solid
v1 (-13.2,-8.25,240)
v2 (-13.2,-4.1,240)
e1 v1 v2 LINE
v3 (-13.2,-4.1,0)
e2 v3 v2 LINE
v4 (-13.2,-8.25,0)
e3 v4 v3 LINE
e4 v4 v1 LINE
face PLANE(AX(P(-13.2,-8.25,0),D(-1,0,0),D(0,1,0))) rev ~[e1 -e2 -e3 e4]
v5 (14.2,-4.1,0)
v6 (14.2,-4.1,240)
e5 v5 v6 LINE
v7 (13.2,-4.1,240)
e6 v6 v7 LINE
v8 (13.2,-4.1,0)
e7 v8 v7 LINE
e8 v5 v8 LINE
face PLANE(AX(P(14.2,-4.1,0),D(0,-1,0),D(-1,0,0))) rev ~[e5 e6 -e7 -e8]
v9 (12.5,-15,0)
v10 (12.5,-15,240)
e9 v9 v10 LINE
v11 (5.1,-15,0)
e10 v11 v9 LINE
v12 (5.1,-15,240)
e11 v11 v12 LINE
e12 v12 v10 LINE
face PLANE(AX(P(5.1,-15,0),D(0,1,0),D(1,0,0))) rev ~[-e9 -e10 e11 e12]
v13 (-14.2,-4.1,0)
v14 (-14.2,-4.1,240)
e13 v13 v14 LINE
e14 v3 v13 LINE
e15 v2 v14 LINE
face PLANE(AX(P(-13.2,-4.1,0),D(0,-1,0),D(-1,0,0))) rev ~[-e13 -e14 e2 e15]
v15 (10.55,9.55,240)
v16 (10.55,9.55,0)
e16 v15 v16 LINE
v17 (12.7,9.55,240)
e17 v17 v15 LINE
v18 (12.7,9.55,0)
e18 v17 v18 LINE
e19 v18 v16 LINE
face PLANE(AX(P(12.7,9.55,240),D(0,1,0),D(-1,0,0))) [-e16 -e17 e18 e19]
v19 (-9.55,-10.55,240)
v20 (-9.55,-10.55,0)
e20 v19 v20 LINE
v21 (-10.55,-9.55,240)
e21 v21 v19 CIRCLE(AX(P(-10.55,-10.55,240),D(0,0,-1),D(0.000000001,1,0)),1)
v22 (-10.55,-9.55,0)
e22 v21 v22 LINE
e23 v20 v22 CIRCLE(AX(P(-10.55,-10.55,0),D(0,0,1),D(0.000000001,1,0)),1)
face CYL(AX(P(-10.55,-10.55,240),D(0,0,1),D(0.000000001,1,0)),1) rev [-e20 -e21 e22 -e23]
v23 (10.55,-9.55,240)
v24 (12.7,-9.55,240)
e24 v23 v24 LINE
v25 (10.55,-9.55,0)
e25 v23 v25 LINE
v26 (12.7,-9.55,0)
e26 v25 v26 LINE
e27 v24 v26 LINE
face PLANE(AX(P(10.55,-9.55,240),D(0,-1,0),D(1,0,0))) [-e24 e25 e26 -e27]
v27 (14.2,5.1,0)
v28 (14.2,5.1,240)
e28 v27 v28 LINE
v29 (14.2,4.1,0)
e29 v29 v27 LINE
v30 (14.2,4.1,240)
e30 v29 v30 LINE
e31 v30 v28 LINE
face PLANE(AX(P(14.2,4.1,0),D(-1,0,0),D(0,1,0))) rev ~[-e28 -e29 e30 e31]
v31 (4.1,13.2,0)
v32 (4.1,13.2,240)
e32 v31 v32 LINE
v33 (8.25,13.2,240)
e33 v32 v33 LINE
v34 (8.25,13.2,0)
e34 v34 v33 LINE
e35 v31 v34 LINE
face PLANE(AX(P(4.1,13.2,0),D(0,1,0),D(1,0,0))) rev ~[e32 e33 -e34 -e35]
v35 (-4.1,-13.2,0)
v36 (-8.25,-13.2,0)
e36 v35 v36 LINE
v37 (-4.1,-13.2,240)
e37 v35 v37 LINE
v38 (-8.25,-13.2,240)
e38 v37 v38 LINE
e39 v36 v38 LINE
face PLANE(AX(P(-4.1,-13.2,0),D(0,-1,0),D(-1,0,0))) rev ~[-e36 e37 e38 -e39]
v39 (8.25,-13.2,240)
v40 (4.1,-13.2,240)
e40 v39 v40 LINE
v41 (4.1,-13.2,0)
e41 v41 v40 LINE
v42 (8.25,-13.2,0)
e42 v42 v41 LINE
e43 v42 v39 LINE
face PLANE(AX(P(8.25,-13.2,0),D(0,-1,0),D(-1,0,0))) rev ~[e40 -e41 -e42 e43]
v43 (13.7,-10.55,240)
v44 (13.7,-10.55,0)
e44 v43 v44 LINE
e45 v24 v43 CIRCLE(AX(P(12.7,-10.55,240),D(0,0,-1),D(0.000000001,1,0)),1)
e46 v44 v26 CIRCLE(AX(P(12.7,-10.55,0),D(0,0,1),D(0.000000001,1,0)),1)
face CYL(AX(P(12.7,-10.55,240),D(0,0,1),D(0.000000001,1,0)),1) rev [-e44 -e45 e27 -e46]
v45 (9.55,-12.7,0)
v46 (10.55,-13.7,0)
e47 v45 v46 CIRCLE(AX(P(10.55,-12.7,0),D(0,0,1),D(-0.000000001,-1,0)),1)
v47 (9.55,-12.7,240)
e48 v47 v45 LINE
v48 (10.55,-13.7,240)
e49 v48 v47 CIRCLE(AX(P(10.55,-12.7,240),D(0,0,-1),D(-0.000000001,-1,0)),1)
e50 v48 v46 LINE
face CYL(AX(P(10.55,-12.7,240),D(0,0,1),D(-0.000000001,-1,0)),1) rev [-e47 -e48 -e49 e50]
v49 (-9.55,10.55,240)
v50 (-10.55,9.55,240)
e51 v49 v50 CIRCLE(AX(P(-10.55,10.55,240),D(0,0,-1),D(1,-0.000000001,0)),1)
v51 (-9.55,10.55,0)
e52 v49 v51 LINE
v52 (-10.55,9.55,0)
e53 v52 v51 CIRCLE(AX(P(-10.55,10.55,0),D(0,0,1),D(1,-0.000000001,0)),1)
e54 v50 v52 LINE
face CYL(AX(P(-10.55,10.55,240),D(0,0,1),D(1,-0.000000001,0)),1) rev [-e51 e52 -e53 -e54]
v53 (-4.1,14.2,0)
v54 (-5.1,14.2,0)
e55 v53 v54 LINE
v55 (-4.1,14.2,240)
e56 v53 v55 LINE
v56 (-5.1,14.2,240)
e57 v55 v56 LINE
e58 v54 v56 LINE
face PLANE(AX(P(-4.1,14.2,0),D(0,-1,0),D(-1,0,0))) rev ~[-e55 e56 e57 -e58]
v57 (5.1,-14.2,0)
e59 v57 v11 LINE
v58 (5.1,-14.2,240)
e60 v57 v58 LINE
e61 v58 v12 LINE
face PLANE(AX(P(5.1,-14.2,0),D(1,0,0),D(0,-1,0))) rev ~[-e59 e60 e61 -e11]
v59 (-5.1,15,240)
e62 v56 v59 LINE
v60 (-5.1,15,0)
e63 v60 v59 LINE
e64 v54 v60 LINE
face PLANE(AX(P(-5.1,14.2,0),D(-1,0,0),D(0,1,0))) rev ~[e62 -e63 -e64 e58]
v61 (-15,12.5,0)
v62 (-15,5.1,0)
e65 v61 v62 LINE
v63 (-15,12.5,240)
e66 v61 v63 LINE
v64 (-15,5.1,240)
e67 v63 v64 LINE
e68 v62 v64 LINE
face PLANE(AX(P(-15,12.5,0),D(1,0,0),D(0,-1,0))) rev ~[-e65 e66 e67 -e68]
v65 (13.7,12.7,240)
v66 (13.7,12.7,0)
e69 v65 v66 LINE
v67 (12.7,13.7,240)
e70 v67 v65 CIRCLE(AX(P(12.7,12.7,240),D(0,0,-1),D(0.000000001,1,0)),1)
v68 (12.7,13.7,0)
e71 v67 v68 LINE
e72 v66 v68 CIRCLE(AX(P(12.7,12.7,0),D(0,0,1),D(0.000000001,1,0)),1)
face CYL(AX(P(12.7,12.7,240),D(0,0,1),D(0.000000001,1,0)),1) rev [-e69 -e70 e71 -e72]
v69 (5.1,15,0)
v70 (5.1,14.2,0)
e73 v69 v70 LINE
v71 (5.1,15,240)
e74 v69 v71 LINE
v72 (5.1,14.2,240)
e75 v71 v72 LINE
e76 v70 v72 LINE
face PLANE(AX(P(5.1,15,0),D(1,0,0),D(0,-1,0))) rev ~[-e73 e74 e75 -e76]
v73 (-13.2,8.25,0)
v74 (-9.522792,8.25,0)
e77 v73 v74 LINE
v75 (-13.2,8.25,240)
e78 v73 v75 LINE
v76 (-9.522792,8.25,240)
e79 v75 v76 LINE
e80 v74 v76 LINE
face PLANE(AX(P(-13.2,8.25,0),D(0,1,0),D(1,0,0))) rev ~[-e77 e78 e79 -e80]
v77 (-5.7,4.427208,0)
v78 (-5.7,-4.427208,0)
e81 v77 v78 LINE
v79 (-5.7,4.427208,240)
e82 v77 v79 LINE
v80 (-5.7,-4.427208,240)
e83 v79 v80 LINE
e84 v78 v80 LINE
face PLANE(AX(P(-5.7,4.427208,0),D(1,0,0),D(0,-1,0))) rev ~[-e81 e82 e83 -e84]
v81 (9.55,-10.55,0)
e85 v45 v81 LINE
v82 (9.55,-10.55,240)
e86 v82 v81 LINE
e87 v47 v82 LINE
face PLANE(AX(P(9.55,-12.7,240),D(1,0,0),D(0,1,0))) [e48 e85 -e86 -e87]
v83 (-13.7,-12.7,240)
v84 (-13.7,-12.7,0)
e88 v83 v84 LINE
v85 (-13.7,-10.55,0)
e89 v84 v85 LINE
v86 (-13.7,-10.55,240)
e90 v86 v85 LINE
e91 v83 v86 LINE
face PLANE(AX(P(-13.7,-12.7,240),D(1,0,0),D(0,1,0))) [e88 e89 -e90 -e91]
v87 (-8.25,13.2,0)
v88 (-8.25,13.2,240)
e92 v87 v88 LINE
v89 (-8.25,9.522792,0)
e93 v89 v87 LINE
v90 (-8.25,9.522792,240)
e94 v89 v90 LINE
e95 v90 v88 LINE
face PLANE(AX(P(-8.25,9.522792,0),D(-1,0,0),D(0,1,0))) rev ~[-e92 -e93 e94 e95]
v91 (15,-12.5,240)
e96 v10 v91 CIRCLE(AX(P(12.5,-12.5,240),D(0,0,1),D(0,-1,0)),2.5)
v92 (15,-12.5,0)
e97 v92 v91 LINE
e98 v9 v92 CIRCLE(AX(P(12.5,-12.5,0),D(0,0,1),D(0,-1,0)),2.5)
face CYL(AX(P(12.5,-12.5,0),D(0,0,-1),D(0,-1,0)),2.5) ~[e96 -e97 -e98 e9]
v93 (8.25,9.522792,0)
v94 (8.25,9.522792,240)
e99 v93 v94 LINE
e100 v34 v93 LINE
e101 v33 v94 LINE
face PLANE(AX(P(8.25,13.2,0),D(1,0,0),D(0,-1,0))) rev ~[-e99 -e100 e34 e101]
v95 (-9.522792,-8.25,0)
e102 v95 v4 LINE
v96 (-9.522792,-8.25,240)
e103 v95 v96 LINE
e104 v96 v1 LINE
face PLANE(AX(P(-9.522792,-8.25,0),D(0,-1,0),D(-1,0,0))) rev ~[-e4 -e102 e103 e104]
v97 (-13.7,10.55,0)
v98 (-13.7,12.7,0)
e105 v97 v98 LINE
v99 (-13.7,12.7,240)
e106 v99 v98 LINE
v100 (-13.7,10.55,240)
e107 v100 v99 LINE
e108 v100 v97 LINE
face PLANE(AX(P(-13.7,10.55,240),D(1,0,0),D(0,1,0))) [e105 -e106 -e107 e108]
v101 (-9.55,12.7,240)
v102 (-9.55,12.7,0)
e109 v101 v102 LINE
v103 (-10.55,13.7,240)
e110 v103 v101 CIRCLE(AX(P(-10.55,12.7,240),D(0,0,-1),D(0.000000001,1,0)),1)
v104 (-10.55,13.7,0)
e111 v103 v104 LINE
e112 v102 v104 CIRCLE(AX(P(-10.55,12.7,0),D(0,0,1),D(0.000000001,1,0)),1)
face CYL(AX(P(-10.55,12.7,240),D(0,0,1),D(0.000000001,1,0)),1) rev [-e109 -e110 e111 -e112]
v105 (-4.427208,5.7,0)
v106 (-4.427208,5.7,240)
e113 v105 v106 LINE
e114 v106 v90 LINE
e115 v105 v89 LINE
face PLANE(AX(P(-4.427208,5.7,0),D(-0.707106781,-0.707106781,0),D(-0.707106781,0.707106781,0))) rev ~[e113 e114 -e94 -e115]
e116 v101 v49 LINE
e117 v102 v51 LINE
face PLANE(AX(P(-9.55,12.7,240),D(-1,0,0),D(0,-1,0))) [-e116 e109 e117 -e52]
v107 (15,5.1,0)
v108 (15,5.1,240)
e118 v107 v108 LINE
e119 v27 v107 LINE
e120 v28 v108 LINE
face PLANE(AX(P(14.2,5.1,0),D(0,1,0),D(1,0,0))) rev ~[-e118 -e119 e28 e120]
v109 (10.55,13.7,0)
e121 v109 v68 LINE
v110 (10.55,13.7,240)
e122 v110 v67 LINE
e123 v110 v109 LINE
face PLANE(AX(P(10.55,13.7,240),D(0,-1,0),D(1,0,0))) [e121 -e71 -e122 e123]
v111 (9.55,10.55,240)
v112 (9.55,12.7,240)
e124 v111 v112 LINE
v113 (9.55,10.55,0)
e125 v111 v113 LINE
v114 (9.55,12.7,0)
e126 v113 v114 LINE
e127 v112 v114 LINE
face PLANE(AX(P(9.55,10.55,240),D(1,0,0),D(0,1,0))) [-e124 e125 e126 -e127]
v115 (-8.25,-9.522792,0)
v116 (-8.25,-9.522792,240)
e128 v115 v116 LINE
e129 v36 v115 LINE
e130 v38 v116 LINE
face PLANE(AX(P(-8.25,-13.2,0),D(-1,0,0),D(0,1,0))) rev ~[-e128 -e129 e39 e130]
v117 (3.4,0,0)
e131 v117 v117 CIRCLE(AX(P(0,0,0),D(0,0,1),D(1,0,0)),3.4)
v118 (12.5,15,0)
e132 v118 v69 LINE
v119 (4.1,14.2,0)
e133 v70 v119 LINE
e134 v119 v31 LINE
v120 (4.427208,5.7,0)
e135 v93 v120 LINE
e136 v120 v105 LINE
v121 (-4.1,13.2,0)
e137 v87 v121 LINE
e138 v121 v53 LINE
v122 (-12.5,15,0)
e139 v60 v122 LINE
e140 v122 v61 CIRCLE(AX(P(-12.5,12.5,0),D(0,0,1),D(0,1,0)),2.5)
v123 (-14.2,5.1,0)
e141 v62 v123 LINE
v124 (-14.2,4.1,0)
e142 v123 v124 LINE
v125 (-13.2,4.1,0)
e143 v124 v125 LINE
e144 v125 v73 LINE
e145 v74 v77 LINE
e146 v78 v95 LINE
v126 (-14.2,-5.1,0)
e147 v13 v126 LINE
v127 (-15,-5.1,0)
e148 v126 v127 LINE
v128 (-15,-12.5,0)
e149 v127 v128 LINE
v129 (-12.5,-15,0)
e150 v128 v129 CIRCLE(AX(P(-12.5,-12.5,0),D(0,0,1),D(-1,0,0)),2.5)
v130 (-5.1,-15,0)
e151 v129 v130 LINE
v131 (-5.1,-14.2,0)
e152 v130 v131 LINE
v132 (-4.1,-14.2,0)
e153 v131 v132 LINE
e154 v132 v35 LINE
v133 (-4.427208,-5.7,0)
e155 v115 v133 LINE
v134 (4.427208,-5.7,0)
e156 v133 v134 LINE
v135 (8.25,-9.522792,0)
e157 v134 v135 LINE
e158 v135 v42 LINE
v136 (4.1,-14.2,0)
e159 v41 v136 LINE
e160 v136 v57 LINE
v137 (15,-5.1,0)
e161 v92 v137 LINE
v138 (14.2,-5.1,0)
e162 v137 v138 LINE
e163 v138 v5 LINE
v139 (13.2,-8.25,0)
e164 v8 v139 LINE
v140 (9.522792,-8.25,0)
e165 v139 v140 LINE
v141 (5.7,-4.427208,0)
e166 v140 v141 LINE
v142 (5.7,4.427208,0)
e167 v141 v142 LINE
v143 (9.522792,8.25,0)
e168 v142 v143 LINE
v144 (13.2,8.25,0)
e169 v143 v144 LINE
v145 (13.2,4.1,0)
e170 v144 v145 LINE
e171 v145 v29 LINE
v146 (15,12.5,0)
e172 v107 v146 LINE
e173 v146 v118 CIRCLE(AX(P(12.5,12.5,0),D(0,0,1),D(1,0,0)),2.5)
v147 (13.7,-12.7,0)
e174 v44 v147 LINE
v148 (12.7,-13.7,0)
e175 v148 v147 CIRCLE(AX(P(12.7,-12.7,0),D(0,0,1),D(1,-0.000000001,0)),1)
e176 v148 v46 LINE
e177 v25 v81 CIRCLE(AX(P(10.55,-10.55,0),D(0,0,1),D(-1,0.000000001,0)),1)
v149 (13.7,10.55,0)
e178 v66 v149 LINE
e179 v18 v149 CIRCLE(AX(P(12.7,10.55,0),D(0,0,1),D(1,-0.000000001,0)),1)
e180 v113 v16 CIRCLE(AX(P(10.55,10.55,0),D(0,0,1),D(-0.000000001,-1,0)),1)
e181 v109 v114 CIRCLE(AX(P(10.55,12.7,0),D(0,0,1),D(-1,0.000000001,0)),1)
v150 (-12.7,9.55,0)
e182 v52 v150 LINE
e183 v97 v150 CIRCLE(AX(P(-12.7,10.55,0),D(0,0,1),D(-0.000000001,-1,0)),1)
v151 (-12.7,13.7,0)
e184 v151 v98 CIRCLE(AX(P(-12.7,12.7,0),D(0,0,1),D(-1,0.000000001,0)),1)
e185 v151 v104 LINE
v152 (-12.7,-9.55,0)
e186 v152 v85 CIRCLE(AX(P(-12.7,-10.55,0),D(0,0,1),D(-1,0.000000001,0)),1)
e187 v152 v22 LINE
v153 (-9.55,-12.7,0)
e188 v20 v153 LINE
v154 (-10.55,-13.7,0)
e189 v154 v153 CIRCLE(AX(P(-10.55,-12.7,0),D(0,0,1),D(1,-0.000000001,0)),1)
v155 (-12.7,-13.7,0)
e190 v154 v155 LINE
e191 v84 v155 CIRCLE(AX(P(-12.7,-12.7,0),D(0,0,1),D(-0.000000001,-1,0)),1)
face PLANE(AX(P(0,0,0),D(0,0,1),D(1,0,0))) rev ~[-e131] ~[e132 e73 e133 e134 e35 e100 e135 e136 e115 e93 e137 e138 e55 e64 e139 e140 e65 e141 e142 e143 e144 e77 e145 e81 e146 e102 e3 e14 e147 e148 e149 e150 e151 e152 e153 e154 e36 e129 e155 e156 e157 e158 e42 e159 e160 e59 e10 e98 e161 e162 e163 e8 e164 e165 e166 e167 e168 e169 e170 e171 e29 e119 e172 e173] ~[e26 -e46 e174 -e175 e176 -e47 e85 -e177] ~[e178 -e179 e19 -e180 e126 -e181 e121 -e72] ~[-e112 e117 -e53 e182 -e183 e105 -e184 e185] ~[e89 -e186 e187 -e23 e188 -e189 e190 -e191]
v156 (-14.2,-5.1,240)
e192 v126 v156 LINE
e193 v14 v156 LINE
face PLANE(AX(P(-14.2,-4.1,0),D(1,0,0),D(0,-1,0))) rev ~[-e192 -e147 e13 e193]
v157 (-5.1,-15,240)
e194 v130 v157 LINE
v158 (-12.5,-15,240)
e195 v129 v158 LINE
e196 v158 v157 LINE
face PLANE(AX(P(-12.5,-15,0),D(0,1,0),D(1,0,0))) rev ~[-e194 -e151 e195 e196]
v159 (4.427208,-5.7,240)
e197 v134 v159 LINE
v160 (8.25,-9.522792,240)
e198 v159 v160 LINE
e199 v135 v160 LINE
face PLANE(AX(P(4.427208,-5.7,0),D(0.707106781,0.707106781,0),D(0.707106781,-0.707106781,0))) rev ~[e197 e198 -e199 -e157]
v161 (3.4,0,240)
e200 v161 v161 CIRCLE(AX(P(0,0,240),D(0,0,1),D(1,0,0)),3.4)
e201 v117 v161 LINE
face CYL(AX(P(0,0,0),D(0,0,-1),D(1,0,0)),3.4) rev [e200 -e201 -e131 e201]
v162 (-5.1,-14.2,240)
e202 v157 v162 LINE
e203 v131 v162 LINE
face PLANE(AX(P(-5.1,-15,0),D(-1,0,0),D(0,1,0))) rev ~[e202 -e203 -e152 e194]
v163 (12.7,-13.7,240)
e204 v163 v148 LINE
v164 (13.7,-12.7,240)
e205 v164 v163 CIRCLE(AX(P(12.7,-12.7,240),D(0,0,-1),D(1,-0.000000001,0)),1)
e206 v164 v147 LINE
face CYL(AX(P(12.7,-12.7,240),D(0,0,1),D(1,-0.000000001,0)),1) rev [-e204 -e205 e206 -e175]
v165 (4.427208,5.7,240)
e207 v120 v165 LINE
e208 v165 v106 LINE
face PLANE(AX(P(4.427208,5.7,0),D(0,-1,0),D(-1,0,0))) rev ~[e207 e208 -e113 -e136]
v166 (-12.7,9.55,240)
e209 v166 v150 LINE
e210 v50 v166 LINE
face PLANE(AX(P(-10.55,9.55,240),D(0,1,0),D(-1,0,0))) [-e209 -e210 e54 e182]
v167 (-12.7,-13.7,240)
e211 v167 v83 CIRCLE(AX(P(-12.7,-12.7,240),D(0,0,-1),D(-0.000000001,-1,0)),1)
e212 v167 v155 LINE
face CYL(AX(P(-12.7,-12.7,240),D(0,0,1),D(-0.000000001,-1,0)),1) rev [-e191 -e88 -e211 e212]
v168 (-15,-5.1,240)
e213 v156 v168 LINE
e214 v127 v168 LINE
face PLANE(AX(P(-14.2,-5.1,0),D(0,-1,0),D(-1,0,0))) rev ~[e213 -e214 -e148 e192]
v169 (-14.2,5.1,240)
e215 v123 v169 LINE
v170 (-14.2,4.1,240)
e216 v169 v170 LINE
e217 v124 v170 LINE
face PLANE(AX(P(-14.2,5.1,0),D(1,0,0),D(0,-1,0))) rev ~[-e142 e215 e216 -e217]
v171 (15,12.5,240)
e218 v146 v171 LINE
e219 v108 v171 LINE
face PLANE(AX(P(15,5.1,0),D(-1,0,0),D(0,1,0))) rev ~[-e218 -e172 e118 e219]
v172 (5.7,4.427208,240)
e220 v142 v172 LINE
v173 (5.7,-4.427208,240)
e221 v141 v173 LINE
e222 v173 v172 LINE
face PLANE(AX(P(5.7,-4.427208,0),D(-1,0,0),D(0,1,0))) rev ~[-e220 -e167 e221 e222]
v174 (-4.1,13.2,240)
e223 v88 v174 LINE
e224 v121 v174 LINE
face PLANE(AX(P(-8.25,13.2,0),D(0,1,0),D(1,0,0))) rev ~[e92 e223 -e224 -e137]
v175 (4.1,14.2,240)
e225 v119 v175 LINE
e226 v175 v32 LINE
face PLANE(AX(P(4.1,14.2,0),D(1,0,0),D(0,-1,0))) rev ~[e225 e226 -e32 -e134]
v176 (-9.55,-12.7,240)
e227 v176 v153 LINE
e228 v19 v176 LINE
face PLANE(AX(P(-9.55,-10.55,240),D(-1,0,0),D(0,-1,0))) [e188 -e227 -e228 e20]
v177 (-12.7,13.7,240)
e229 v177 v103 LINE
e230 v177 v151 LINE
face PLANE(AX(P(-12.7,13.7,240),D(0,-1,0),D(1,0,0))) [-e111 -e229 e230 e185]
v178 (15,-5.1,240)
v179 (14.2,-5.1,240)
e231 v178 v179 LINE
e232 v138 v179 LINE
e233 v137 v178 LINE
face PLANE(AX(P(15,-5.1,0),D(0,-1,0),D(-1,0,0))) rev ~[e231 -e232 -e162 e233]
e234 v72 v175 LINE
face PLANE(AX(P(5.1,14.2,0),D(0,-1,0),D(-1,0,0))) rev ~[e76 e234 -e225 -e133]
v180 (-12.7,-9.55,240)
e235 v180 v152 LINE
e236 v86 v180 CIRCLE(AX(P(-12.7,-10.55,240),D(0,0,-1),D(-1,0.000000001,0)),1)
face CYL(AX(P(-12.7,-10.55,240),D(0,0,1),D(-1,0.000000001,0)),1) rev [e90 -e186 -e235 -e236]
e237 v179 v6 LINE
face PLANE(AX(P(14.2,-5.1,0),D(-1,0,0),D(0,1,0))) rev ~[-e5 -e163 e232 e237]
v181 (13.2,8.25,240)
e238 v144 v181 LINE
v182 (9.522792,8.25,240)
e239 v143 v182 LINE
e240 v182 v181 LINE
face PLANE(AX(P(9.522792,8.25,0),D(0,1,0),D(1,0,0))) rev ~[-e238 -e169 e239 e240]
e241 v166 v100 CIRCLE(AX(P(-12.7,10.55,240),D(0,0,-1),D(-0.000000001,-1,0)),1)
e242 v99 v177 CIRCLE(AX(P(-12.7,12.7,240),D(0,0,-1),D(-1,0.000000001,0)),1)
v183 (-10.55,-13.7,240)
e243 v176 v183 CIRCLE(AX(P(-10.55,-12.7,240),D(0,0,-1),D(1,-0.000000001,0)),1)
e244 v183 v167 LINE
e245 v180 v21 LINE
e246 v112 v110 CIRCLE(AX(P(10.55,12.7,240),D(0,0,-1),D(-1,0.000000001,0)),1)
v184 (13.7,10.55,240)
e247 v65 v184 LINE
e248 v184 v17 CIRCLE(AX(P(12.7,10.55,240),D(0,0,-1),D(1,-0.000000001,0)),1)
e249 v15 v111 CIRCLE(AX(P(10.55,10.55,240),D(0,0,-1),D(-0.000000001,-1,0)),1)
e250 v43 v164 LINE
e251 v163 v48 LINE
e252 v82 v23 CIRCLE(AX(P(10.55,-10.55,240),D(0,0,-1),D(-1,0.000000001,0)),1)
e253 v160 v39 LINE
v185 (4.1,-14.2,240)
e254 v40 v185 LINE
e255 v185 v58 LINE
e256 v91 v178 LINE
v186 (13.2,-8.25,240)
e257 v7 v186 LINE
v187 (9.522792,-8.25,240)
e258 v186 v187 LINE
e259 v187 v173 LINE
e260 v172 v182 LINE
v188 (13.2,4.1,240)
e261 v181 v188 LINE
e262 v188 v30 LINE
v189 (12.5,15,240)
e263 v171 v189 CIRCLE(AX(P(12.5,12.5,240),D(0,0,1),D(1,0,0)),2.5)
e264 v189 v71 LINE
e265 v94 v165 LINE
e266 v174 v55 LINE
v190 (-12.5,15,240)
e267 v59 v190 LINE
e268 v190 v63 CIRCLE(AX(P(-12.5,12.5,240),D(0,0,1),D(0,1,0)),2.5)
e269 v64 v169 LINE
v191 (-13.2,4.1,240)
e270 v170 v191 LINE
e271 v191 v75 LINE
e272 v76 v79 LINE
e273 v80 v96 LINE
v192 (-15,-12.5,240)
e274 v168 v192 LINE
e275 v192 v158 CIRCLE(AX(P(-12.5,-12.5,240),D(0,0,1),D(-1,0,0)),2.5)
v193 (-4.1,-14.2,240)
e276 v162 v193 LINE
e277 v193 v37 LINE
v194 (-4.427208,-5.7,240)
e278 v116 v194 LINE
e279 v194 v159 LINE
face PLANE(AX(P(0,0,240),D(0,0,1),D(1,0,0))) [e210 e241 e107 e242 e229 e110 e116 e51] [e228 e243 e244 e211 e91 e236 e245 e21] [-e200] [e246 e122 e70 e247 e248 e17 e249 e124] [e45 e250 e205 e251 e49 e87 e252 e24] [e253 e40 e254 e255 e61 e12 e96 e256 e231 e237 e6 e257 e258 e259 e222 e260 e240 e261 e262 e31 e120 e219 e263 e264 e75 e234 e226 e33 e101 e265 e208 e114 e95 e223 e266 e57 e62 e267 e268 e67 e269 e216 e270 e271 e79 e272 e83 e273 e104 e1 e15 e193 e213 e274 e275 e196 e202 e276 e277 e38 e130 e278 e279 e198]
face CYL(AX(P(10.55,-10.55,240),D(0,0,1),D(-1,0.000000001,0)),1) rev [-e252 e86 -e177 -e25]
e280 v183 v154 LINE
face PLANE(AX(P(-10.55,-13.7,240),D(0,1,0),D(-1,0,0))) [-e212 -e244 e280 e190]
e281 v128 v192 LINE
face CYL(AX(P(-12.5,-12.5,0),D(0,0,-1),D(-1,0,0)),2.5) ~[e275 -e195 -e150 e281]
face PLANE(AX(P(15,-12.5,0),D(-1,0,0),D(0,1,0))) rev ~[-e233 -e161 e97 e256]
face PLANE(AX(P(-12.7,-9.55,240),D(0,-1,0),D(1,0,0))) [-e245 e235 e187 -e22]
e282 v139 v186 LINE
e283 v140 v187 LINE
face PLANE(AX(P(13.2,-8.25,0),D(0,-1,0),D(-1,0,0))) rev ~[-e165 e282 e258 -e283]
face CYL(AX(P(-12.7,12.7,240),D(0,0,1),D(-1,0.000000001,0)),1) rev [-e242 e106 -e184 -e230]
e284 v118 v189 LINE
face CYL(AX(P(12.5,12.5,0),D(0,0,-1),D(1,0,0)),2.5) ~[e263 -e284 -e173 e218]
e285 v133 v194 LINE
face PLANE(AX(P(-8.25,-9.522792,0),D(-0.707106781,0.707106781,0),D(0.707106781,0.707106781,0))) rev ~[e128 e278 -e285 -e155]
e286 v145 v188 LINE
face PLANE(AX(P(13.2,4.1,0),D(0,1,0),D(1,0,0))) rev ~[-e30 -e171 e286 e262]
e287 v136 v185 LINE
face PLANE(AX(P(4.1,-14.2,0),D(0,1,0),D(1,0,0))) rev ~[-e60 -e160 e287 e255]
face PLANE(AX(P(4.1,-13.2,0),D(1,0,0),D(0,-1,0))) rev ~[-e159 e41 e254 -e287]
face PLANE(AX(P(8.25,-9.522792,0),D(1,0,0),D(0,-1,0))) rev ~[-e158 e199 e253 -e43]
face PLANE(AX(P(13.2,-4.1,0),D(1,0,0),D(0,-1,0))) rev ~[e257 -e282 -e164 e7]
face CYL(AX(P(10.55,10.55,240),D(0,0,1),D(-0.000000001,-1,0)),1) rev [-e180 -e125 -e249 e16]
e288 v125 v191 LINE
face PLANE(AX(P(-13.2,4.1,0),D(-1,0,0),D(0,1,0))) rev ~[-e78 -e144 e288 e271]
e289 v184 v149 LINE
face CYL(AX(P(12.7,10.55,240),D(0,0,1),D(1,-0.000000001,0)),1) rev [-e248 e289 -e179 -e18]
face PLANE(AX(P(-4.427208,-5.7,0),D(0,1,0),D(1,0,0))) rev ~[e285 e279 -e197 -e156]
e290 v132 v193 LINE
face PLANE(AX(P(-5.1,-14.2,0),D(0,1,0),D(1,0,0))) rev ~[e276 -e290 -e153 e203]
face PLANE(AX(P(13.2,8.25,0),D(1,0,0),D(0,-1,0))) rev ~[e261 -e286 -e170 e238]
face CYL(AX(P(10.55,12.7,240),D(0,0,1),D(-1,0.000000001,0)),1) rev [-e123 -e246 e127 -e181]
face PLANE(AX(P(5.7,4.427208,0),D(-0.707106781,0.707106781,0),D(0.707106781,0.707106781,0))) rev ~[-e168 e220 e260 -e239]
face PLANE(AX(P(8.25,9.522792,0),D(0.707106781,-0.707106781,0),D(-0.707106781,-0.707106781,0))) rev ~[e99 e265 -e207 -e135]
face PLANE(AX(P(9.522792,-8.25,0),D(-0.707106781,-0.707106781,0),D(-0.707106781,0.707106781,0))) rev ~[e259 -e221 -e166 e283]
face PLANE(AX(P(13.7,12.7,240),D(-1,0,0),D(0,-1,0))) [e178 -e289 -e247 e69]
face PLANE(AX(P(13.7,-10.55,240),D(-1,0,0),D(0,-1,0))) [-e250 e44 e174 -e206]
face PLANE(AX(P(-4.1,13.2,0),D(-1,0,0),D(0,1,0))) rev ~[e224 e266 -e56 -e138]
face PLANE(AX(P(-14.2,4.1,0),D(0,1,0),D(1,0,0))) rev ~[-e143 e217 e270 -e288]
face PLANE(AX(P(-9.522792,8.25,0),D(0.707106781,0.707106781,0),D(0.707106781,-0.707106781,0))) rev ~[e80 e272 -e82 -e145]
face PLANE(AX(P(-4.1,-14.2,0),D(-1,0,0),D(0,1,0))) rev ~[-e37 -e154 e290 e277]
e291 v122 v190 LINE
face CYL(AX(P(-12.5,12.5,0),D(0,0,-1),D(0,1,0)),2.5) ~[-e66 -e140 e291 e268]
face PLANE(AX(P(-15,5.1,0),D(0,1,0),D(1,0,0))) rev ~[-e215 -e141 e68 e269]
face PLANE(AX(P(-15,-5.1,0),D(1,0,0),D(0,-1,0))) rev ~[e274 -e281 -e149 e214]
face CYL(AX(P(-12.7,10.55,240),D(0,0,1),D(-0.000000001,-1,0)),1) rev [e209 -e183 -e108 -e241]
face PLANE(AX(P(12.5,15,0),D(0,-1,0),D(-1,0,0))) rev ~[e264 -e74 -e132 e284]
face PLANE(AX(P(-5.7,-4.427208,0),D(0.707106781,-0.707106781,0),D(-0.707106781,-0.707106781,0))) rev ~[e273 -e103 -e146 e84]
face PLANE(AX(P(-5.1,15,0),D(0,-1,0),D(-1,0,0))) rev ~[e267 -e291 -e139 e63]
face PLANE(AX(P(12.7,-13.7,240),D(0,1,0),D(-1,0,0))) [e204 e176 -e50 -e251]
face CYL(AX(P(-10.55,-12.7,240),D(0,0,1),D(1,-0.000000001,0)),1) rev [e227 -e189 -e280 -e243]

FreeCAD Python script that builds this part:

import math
import FreeCAD as App
import Part
import Sketcher
from FreeCAD import Vector
Q = App.Units.Quantity

doc = App.newDocument("Part")
body = doc.addObject("PartDesign::Body", "Body")

# Sketch on XY plane
sketch1 = doc.addObject("Sketcher::SketchObject", "Sketch")
body.addObject(sketch1)
sketch1.AttachmentSupport = (doc.XY_Plane, [""])
sketch1.MapMode = "FlatFace"
sketch1.addGeometry(Part.LineSegment(Vector(-5.1, 14.2, 0), Vector(-5.1, 15, 0)), False)
sketch1.addGeometry(Part.LineSegment(Vector(-5.1, 15, 0), Vector(-12.5, 15, 0)), False)
sketch1.addGeometry(Part.ArcOfCircle(Part.Circle(Vector(-12.5, 12.5, 0), Vector(0, 0, 1), 2.5), math.radians(90), math.radians(180)), False)
sketch1.addGeometry(Part.LineSegment(Vector(-15, 12.5, 0), Vector(-15, 5.1, 0)), False)
sketch1.addGeometry(Part.LineSegment(Vector(-15, 5.1, 0), Vector(-14.2, 5.1, 0)), False)
sketch1.addGeometry(Part.LineSegment(Vector(-14.2, 5.1, 0), Vector(-14.2, 4.1, 0)), False)
sketch1.addGeometry(Part.LineSegment(Vector(-14.2, 4.1, 0), Vector(-13.2, 4.1, 0)), False)
sketch1.addGeometry(Part.LineSegment(Vector(-13.2, 4.1, 0), Vector(-13.2, 8.2, 0)), False)
sketch1.addGeometry(Part.LineSegment(Vector(-13.2, 8.2, 0), Vector(-9.5, 8.2, 0)), False)
sketch1.addGeometry(Part.LineSegment(Vector(-9.5, 8.2, 0), Vector(-5.7, 4.4, 0)), False)
sketch1.addGeometry(Part.LineSegment(Vector(-5.7, 4.4, 0), Vector(-5.7, -4.4, 0)), False)
sketch1.addGeometry(Part.LineSegment(Vector(-5.7, -4.4, 0), Vector(-9.5, -8.2, 0)), False)
sketch1.addGeometry(Part.LineSegment(Vector(-9.5, -8.2, 0), Vector(-13.2, -8.2, 0)), False)
sketch1.addGeometry(Part.LineSegment(Vector(-13.2, -8.2, 0), Vector(-13.2, -4.1, 0)), False)
sketch1.addGeometry(Part.LineSegment(Vector(-13.2, -4.1, 0), Vector(-14.2, -4.1, 0)), False)
sketch1.addGeometry(Part.LineSegment(Vector(-14.2, -4.1, 0), Vector(-14.2, -5.1, 0)), False)
sketch1.addGeometry(Part.LineSegment(Vector(-14.2, -5.1, 0), Vector(-15, -5.1, 0)), False)
sketch1.addGeometry(Part.LineSegment(Vector(-15, -5.1, 0), Vector(-15, -12.5, 0)), False)
sketch1.addGeometry(Part.ArcOfCircle(Part.Circle(Vector(-12.5, -12.5, 0), Vector(0, 0, 1), 2.5), math.radians(180), math.radians(270)), False)
sketch1.addGeometry(Part.LineSegment(Vector(-12.5, -15, 0), Vector(-5.1, -15, 0)), False)
sketch1.addGeometry(Part.LineSegment(Vector(-5.1, -15, 0), Vector(-5.1, -14.2, 0)), False)
sketch1.addGeometry(Part.LineSegment(Vector(-5.1, -14.2, 0), Vector(-4.1, -14.2, 0)), False)
sketch1.addGeometry(Part.LineSegment(Vector(-4.1, -14.2, 0), Vector(-4.1, -13.2, 0)), False)
sketch1.addGeometry(Part.LineSegment(Vector(-4.1, -13.2, 0), Vector(-8.2, -13.2, 0)), False)
sketch1.addGeometry(Part.LineSegment(Vector(-8.2, -13.2, 0), Vector(-8.2, -9.5, 0)), False)
sketch1.addGeometry(Part.LineSegment(Vector(-8.2, -9.5, 0), Vector(-4.4, -5.7, 0)), False)
sketch1.addGeometry(Part.LineSegment(Vector(-4.4, -5.7, 0), Vector(4.4, -5.7, 0)), False)
sketch1.addGeometry(Part.LineSegment(Vector(4.4, -5.7, 0), Vector(8.2, -9.5, 0)), False)
sketch1.addGeometry(Part.LineSegment(Vector(8.2, -9.5, 0), Vector(8.2, -13.2, 0)), False)
sketch1.addGeometry(Part.LineSegment(Vector(8.2, -13.2, 0), Vector(4.1, -13.2, 0)), False)
sketch1.addGeometry(Part.LineSegment(Vector(4.1, -13.2, 0), Vector(4.1, -14.2, 0)), False)
sketch1.addGeometry(Part.LineSegment(Vector(4.1, -14.2, 0), Vector(5.1, -14.2, 0)), False)
sketch1.addGeometry(Part.LineSegment(Vector(5.1, -14.2, 0), Vector(5.1, -15, 0)), False)
sketch1.addGeometry(Part.LineSegment(Vector(5.1, -15, 0), Vector(12.5, -15, 0)), False)
sketch1.addGeometry(Part.ArcOfCircle(Part.Circle(Vector(12.5, -12.5, 0), Vector(0, 0, 1), 2.5), math.radians(-90), math.radians(0)), False)
sketch1.addGeometry(Part.LineSegment(Vector(15, -12.5, 0), Vector(15, -5.1, 0)), False)
sketch1.addGeometry(Part.LineSegment(Vector(15, -5.1, 0), Vector(14.2, -5.1, 0)), False)
sketch1.addGeometry(Part.LineSegment(Vector(14.2, -5.1, 0), Vector(14.2, -4.1, 0)), False)
sketch1.addGeometry(Part.LineSegment(Vector(14.2, -4.1, 0), Vector(13.2, -4.1, 0)), False)
sketch1.addGeometry(Part.LineSegment(Vector(13.2, -4.1, 0), Vector(13.2, -8.2, 0)), False)
sketch1.addGeometry(Part.LineSegment(Vector(13.2, -8.2, 0), Vector(9.5, -8.2, 0)), False)
sketch1.addGeometry(Part.LineSegment(Vector(9.5, -8.2, 0), Vector(5.7, -4.4, 0)), False)
sketch1.addGeometry(Part.LineSegment(Vector(5.7, -4.4, 0), Vector(5.7, 4.4, 0)), False)
sketch1.addGeometry(Part.LineSegment(Vector(5.7, 4.4, 0), Vector(9.5, 8.2, 0)), False)
sketch1.addGeometry(Part.LineSegment(Vector(9.5, 8.2, 0), Vector(13.2, 8.2, 0)), False)
sketch1.addGeometry(Part.LineSegment(Vector(13.2, 8.2, 0), Vector(13.2, 4.1, 0)), False)
sketch1.addGeometry(Part.LineSegment(Vector(13.2, 4.1, 0), Vector(14.2, 4.1, 0)), False)
sketch1.addGeometry(Part.LineSegment(Vector(14.2, 4.1, 0), Vector(14.2, 5.1, 0)), False)
sketch1.addGeometry(Part.LineSegment(Vector(14.2, 5.1, 0), Vector(15, 5.1, 0)), False)
sketch1.addGeometry(Part.LineSegment(Vector(15, 5.1, 0), Vector(15, 12.5, 0)), False)
sketch1.addGeometry(Part.ArcOfCircle(Part.Circle(Vector(12.5, 12.5, 0), Vector(0, 0, 1), 2.5), math.radians(0), math.radians(90)), False)
sketch1.addGeometry(Part.LineSegment(Vector(12.5, 15, 0), Vector(5.1, 15, 0)), False)
sketch1.addGeometry(Part.LineSegment(Vector(5.1, 15, 0), Vector(5.1, 14.2, 0)), False)
sketch1.addGeometry(Part.LineSegment(Vector(5.1, 14.2, 0), Vector(4.1, 14.2, 0)), False)
sketch1.addGeometry(Part.LineSegment(Vector(4.1, 14.2, 0), Vector(4.1, 13.2, 0)), False)
sketch1.addGeometry(Part.LineSegment(Vector(4.1, 13.2, 0), Vector(8.2, 13.2, 0)), False)
sketch1.addGeometry(Part.LineSegment(Vector(8.2, 13.2, 0), Vector(8.2, 9.5, 0)), False)
sketch1.addGeometry(Part.LineSegment(Vector(8.2, 9.5, 0), Vector(4.4, 5.7, 0)), False)
sketch1.addGeometry(Part.LineSegment(Vector(4.4, 5.7, 0), Vector(-4.4, 5.7, 0)), False)
sketch1.addGeometry(Part.LineSegment(Vector(-4.4, 5.7, 0), Vector(-8.2, 9.5, 0)), False)
sketch1.addGeometry(Part.LineSegment(Vector(-8.2, 9.5, 0), Vector(-8.2, 13.2, 0)), False)
sketch1.addGeometry(Part.LineSegment(Vector(-8.2, 13.2, 0), Vector(-4.1, 13.2, 0)), False)
sketch1.addGeometry(Part.LineSegment(Vector(-4.1, 13.2, 0), Vector(-4.1, 14.2, 0)), False)
sketch1.addGeometry(Part.LineSegment(Vector(-4.1, 14.2, 0), Vector(-5.1, 14.2, 0)), False)
sketch1.addGeometry(Part.Circle(Vector(0, 0, 0), Vector(0, 0, 1), 3.4), False)
sketch1.addConstraint(Sketcher.Constraint("Coincident", 0, 2, 1, 1))
sketch1.addConstraint(Sketcher.Constraint("Tangent", 1, 2, 2, 1))
sketch1.addConstraint(Sketcher.Constraint("Tangent", 2, 2, 3, 1))
sketch1.addConstraint(Sketcher.Constraint("Coincident", 3, 2, 4, 1))
sketch1.addConstraint(Sketcher.Constraint("Coincident", 4, 2, 5, 1))
sketch1.addConstraint(Sketcher.Constraint("Coincident", 5, 2, 6, 1))
sketch1.addConstraint(Sketcher.Constraint("Coincident", 6, 2, 7, 1))
sketch1.addConstraint(Sketcher.Constraint("Coincident", 7, 2, 8, 1))
sketch1.addConstraint(Sketcher.Constraint("Coincident", 8, 2, 9, 1))
sketch1.addConstraint(Sketcher.Constraint("Coincident", 9, 2, 10, 1))
sketch1.addConstraint(Sketcher.Constraint("Coincident", 10, 2, 11, 1))
sketch1.addConstraint(Sketcher.Constraint("Coincident", 11, 2, 12, 1))
sketch1.addConstraint(Sketcher.Constraint("Coincident", 12, 2, 13, 1))
sketch1.addConstraint(Sketcher.Constraint("Coincident", 13, 2, 14, 1))
sketch1.addConstraint(Sketcher.Constraint("Coincident", 14, 2, 15, 1))
sketch1.addConstraint(Sketcher.Constraint("Coincident", 15, 2, 16, 1))
sketch1.addConstraint(Sketcher.Constraint("Coincident", 16, 2, 17, 1))
sketch1.addConstraint(Sketcher.Constraint("Tangent", 17, 2, 18, 1))
sketch1.addConstraint(Sketcher.Constraint("Tangent", 18, 2, 19, 1))
sketch1.addConstraint(Sketcher.Constraint("Coincident", 19, 2, 20, 1))
sketch1.addConstraint(Sketcher.Constraint("Coincident", 20, 2, 21, 1))
sketch1.addConstraint(Sketcher.Constraint("Coincident", 21, 2, 22, 1))
sketch1.addConstraint(Sketcher.Constraint("Coincident", 22, 2, 23, 1))
sketch1.addConstraint(Sketcher.Constraint("Coincident", 23, 2, 24, 1))
sketch1.addConstraint(Sketcher.Constraint("Coincident", 24, 2, 25, 1))
sketch1.addConstraint(Sketcher.Constraint("Coincident", 25, 2, 26, 1))
sketch1.addConstraint(Sketcher.Constraint("Coincident", 26, 2, 27, 1))
sketch1.addConstraint(Sketcher.Constraint("Coincident", 27, 2, 28, 1))
sketch1.addConstraint(Sketcher.Constraint("Coincident", 28, 2, 29, 1))
sketch1.addConstraint(Sketcher.Constraint("Coincident", 29, 2, 30, 1))
sketch1.addConstraint(Sketcher.Constraint("Coincident", 30, 2, 31, 1))
sketch1.addConstraint(Sketcher.Constraint("Coincident", 31, 2, 32, 1))
sketch1.addConstraint(Sketcher.Constraint("Coincident", 32, 2, 33, 1))
sketch1.addConstraint(Sketcher.Constraint("Tangent", 33, 2, 34, 1))
sketch1.addConstraint(Sketcher.Constraint("Tangent", 34, 2, 35, 1))
sketch1.addConstraint(Sketcher.Constraint("Coincident", 35, 2, 36, 1))
sketch1.addConstraint(Sketcher.Constraint("Coincident", 36, 2, 37, 1))
sketch1.addConstraint(Sketcher.Constraint("Coincident", 37, 2, 38, 1))
sketch1.addConstraint(Sketcher.Constraint("Coincident", 38, 2, 39, 1))
sketch1.addConstraint(Sketcher.Constraint("Coincident", 39, 2, 40, 1))
sketch1.addConstraint(Sketcher.Constraint("Coincident", 40, 2, 41, 1))
sketch1.addConstraint(Sketcher.Constraint("Coincident", 41, 2, 42, 1))
sketch1.addConstraint(Sketcher.Constraint("Coincident", 42, 2, 43, 1))
sketch1.addConstraint(Sketcher.Constraint("Coincident", 43, 2, 44, 1))
sketch1.addConstraint(Sketcher.Constraint("Coincident", 44, 2, 45, 1))
sketch1.addConstraint(Sketcher.Constraint("Coincident", 45, 2, 46, 1))
sketch1.addConstraint(Sketcher.Constraint("Coincident", 46, 2, 47, 1))
sketch1.addConstraint(Sketcher.Constraint("Coincident", 47, 2, 48, 1))
sketch1.addConstraint(Sketcher.Constraint("Coincident", 48, 2, 49, 1))
sketch1.addConstraint(Sketcher.Constraint("Tangent", 49, 2, 50, 1))
sketch1.addConstraint(Sketcher.Constraint("Tangent", 50, 2, 51, 1))
sketch1.addConstraint(Sketcher.Constraint("Coincident", 51, 2, 52, 1))
sketch1.addConstraint(Sketcher.Constraint("Coincident", 52, 2, 53, 1))
sketch1.addConstraint(Sketcher.Constraint("Coincident", 53, 2, 54, 1))
sketch1.addConstraint(Sketcher.Constraint("Coincident", 54, 2, 55, 1))
sketch1.addConstraint(Sketcher.Constraint("Coincident", 55, 2, 56, 1))
sketch1.addConstraint(Sketcher.Constraint("Coincident", 56, 2, 57, 1))
sketch1.addConstraint(Sketcher.Constraint("Coincident", 57, 2, 58, 1))
sketch1.addConstraint(Sketcher.Constraint("Coincident", 58, 2, 59, 1))
sketch1.addConstraint(Sketcher.Constraint("Coincident", 59, 2, 60, 1))
sketch1.addConstraint(Sketcher.Constraint("Coincident", 60, 2, 61, 1))
sketch1.addConstraint(Sketcher.Constraint("Coincident", 61, 2, 62, 1))
sketch1.addConstraint(Sketcher.Constraint("Coincident", 62, 2, 63, 1))
sketch1.addConstraint(Sketcher.Constraint("Coincident", 63, 2, 0, 1))
sketch1.addConstraint(Sketcher.Constraint("Vertical", 0))
sketch1.addConstraint(Sketcher.Constraint("Horizontal", 1))
sketch1.addConstraint(Sketcher.Constraint("Vertical", 3))
sketch1.addConstraint(Sketcher.Constraint("Horizontal", 4))
sketch1.addConstraint(Sketcher.Constraint("Vertical", 5))
sketch1.addConstraint(Sketcher.Constraint("Horizontal", 6))
sketch1.addConstraint(Sketcher.Constraint("Vertical", 7))
sketch1.addConstraint(Sketcher.Constraint("Horizontal", 8))
sketch1.addConstraint(Sketcher.Constraint("Vertical", 10))
sketch1.addConstraint(Sketcher.Constraint("Horizontal", 12))
sketch1.addConstraint(Sketcher.Constraint("Vertical", 13))
sketch1.addConstraint(Sketcher.Constraint("Horizontal", 14))
sketch1.addConstraint(Sketcher.Constraint("Vertical", 15))
sketch1.addConstraint(Sketcher.Constraint("Horizontal", 16))
sketch1.addConstraint(Sketcher.Constraint("Vertical", 17))
sketch1.addConstraint(Sketcher.Constraint("Horizontal", 19))
sketch1.addConstraint(Sketcher.Constraint("Vertical", 20))
sketch1.addConstraint(Sketcher.Constraint("Horizontal", 21))
sketch1.addConstraint(Sketcher.Constraint("Vertical", 22))
sketch1.addConstraint(Sketcher.Constraint("Horizontal", 23))
sketch1.addConstraint(Sketcher.Constraint("Vertical", 24))
sketch1.addConstraint(Sketcher.Constraint("Horizontal", 26))
sketch1.addConstraint(Sketcher.Constraint("Vertical", 28))
sketch1.addConstraint(Sketcher.Constraint("Horizontal", 29))
sketch1.addConstraint(Sketcher.Constraint("Vertical", 30))
sketch1.addConstraint(Sketcher.Constraint("Horizontal", 31))
sketch1.addConstraint(Sketcher.Constraint("Vertical", 32))
sketch1.addConstraint(Sketcher.Constraint("Horizontal", 33))
sketch1.addConstraint(Sketcher.Constraint("Vertical", 35))
sketch1.addConstraint(Sketcher.Constraint("Horizontal", 36))
sketch1.addConstraint(Sketcher.Constraint("Vertical", 37))
sketch1.addConstraint(Sketcher.Constraint("Horizontal", 38))
sketch1.addConstraint(Sketcher.Constraint("Vertical", 39))
sketch1.addConstraint(Sketcher.Constraint("Horizontal", 40))
sketch1.addConstraint(Sketcher.Constraint("Vertical", 42))
sketch1.addConstraint(Sketcher.Constraint("Horizontal", 44))
sketch1.addConstraint(Sketcher.Constraint("Vertical", 45))
sketch1.addConstraint(Sketcher.Constraint("Horizontal", 46))
sketch1.addConstraint(Sketcher.Constraint("Vertical", 47))
sketch1.addConstraint(Sketcher.Constraint("Horizontal", 48))
sketch1.addConstraint(Sketcher.Constraint("Vertical", 49))
sketch1.addConstraint(Sketcher.Constraint("Horizontal", 51))
sketch1.addConstraint(Sketcher.Constraint("Vertical", 52))
sketch1.addConstraint(Sketcher.Constraint("Horizontal", 53))
sketch1.addConstraint(Sketcher.Constraint("Vertical", 54))
sketch1.addConstraint(Sketcher.Constraint("Horizontal", 55))
sketch1.addConstraint(Sketcher.Constraint("Vertical", 56))
sketch1.addConstraint(Sketcher.Constraint("Horizontal", 58))
sketch1.addConstraint(Sketcher.Constraint("Vertical", 60))
sketch1.addConstraint(Sketcher.Constraint("Horizontal", 61))
sketch1.addConstraint(Sketcher.Constraint("Vertical", 62))
sketch1.addConstraint(Sketcher.Constraint("Horizontal", 63))
sketch1.addConstraint(Sketcher.Constraint("Coincident", 64, 3, -1, 1))
sketch1.addConstraint(Sketcher.Constraint("Equal", 2, 18))
sketch1.addConstraint(Sketcher.Constraint("Equal", 18, 34))
sketch1.addConstraint(Sketcher.Constraint("Equal", 34, 50))
sketch1.addConstraint(Sketcher.Constraint("Symmetric", 2, 3, 34, 3, -1, 1))
sketch1.addConstraint(Sketcher.Constraint("Symmetric", 18, 3, 50, 3, -1, 1))
sketch1.addConstraint(Sketcher.Constraint("Symmetric", 4, 2, 36, 2, -1, 1))
sketch1.addConstraint(Sketcher.Constraint("Symmetric", 6, 2, 38, 2, -1, 1))
sketch1.addConstraint(Sketcher.Constraint("Symmetric", 8, 2, 40, 2, -1, 1))
sketch1.addConstraint(Sketcher.Constraint("Symmetric", 9, 2, 41, 2, -1, 1))
sketch1.addConstraint(Sketcher.Constraint("Symmetric", 11, 2, 43, 2, -1, 1))
sketch1.addConstraint(Sketcher.Constraint("Symmetric", 13, 2, 45, 2, -1, 1))
sketch1.addConstraint(Sketcher.Constraint("Symmetric", 15, 2, 47, 2, -1, 1))
sketch1.addConstraint(Sketcher.Constraint("Symmetric", 20, 2, 52, 2, -1, 1))
sketch1.addConstraint(Sketcher.Constraint("Symmetric", 22, 2, 54, 2, -1, 1))
sketch1.addConstraint(Sketcher.Constraint("Symmetric", 24, 2, 56, 2, -1, 1))
sketch1.addConstraint(Sketcher.Constraint("Symmetric", 25, 2, 57, 2, -1, 1))
sketch1.addConstraint(Sketcher.Constraint("Symmetric", 27, 2, 59, 2, -1, 1))
sketch1.addConstraint(Sketcher.Constraint("Symmetric", 29, 2, 61, 2, -1, 1))
sketch1.addConstraint(Sketcher.Constraint("Symmetric", 31, 2, 63, 2, -1, 1))
sketch1.addConstraint(Sketcher.Constraint("Symmetric", 18, 3, 34, 3, -2))
sketch1.addConstraint(Sketcher.Constraint("Symmetric", 24, 2, 27, 2, -2))
sketch1.addConstraint(Sketcher.Constraint("Symmetric", 22, 2, 29, 2, -2))
sketch1.addConstraint(Sketcher.Constraint("Symmetric", 20, 2, 31, 2, -2))
sketch1.addConstraint(Sketcher.Constraint("Symmetric", 15, 2, 36, 2, -2))
sketch1.addConstraint(Sketcher.Constraint("Symmetric", 13, 2, 38, 2, -2))
sketch1.addConstraint(Sketcher.Constraint("Symmetric", 11, 2, 40, 2, -2))
sketch1.addConstraint(Sketcher.Constraint("Perpendicular", 9, 11))
sketch1.addConstraint(Sketcher.Constraint("Parallel", 11, 25))
sketch1.addConstraint(Sketcher.Constraint("Perpendicular", 25, 27))
sketch1.addConstraint(Sketcher.Constraint("Perpendicular", 41, 43))
sketch1.addConstraint(Sketcher.Constraint("Perpendicular", 57, 59))
sketch1.addConstraint(Sketcher.Constraint("Horizontal", 10, 2, 41, 2))
sketch1.addConstraint(Sketcher.Constraint("Equal", 14, 21))
sketch1.addConstraint(Sketcher.Constraint("Equal", 48, 0))
sketch1.addConstraint(Sketcher.Constraint("Equal", 51, 3))
sketch1.addConstraint(Sketcher.Constraint("Equal", 63, 5))
sketch1.addConstraint(Sketcher.Constraint("Equal", 61, 7))
sketch1.addConstraint(Sketcher.Constraint("Equal", 58, 10))
sketch1.addConstraint(Sketcher.Constraint("Equal", 15, 22))
sketch1.addConstraint(Sketcher.Constraint("Equal", 44, 24))
sketch1.addConstraint(Sketcher.Constraint("Equal", 11, 25))
sketch1.addConstraint(Sketcher.Constraint("Diameter", 64, Q("6.8 mm")))
sketch1.addConstraint(Sketcher.Constraint("Radius", 2, Q("2.5 mm")))
sketch1.addConstraint(Sketcher.Constraint("DistanceX", 6, 1, 6, 2, Q("1 mm")))
sketch1.addConstraint(Sketcher.Constraint("DistanceX", 1, 2, 1, 1, Q("7.4 mm")))
sketch1.addConstraint(Sketcher.Constraint("DistanceX", 4, 1, 4, 2, Q("0.8 mm")))
sketch1.addConstraint(Sketcher.Constraint("DistanceY", -1, 1, 0, 2, Q("15 mm")))
sketch1.addConstraint(Sketcher.Constraint("DistanceX", 23, 2, 23, 1, Q("4.15 mm")))
sketch1.addConstraint(Sketcher.Constraint("DistanceX", 9, 2, -1, 1, Q("5.7 mm")))
sketch1.addConstraint(Sketcher.Constraint("DistanceX", 8, 1, 8, 2, Q("3.677208 mm")))
pad1 = doc.addObject("PartDesign::Pad", "Pad")
body.addObject(pad1)
pad1.Profile = sketch1
pad1.Length = 240

# Sketch on XY plane
sketch2 = doc.addObject("Sketcher::SketchObject", "Sketch001")
body.addObject(sketch2)
sketch2.AttachmentSupport = (doc.XY_Plane, [""])
sketch2.MapMode = "FlatFace"
sketch2.AttachmentOffset = App.Placement(Vector(0, 0, 240), App.Rotation())
sketch2.addGeometry(Part.LineSegment(Vector(13.7, 10.6, 0), Vector(13.7, 12.7, 0)), False)
sketch2.addGeometry(Part.ArcOfCircle(Part.Circle(Vector(12.7, 12.7, 0), Vector(0, 0, 1), 1), math.radians(0), math.radians(90)), False)
sketch2.addGeometry(Part.LineSegment(Vector(12.7, 13.7, 0), Vector(10.6, 13.7, 0)), False)
sketch2.addGeometry(Part.ArcOfCircle(Part.Circle(Vector(10.6, 12.7, 0), Vector(0, 0, 1), 1), math.radians(90), math.radians(180)), False)
sketch2.addGeometry(Part.LineSegment(Vector(9.6, 12.7, 0), Vector(9.6, 10.6, 0)), False)
sketch2.addGeometry(Part.ArcOfCircle(Part.Circle(Vector(10.6, 10.6, 0), Vector(0, 0, 1), 1), math.radians(-180), math.radians(-90)), False)
sketch2.addGeometry(Part.LineSegment(Vector(10.6, 9.6, 0), Vector(12.7, 9.6, 0)), False)
sketch2.addGeometry(Part.ArcOfCircle(Part.Circle(Vector(12.7, 10.6, 0), Vector(0, 0, 1), 1), math.radians(-90), math.radians(0)), False)
sketch2.addGeometry(Part.LineSegment(Vector(-10.6, 13.7, 0), Vector(-12.7, 13.7, 0)), False)
sketch2.addGeometry(Part.ArcOfCircle(Part.Circle(Vector(-12.7, 12.7, 0), Vector(0, 0, 1), 1), math.radians(90), math.radians(180)), False)
sketch2.addGeometry(Part.LineSegment(Vector(-13.7, 12.7, 0), Vector(-13.7, 10.6, 0)), False)
sketch2.addGeometry(Part.ArcOfCircle(Part.Circle(Vector(-12.7, 10.6, 0), Vector(0, 0, 1), 1), math.radians(-180), math.radians(-90)), False)
sketch2.addGeometry(Part.LineSegment(Vector(-12.7, 9.6, 0), Vector(-10.6, 9.6, 0)), False)
sketch2.addGeometry(Part.ArcOfCircle(Part.Circle(Vector(-10.6, 10.6, 0), Vector(0, 0, 1), 1), math.radians(-90), math.radians(0)), False)
sketch2.addGeometry(Part.LineSegment(Vector(-9.6, 10.6, 0), Vector(-9.6, 12.7, 0)), False)
sketch2.addGeometry(Part.ArcOfCircle(Part.Circle(Vector(-10.6, 12.7, 0), Vector(0, 0, 1), 1), math.radians(0), math.radians(90)), False)
sketch2.addGeometry(Part.LineSegment(Vector(10.6, -13.7, 0), Vector(12.7, -13.7, 0)), False)
sketch2.addGeometry(Part.ArcOfCircle(Part.Circle(Vector(12.7, -12.7, 0), Vector(0, 0, 1), 1), math.radians(-90), math.radians(0)), False)
sketch2.addGeometry(Part.LineSegment(Vector(13.7, -12.7, 0), Vector(13.7, -10.6, 0)), False)
sketch2.addGeometry(Part.ArcOfCircle(Part.Circle(Vector(12.7, -10.6, 0), Vector(0, 0, 1), 1), math.radians(0), math.radians(90)), False)
sketch2.addGeometry(Part.LineSegment(Vector(12.7, -9.6, 0), Vector(10.6, -9.6, 0)), False)
sketch2.addGeometry(Part.ArcOfCircle(Part.Circle(Vector(10.6, -10.6, 0), Vector(0, 0, 1), 1), math.radians(90), math.radians(180)), False)
sketch2.addGeometry(Part.LineSegment(Vector(9.6, -10.6, 0), Vector(9.6, -12.7, 0)), False)
sketch2.addGeometry(Part.ArcOfCircle(Part.Circle(Vector(10.6, -12.7, 0), Vector(0, 0, 1), 1), math.radians(-180), math.radians(-90)), False)
sketch2.addGeometry(Part.LineSegment(Vector(-13.7, -10.6, 0), Vector(-13.7, -12.7, 0)), False)
sketch2.addGeometry(Part.ArcOfCircle(Part.Circle(Vector(-12.7, -12.7, 0), Vector(0, 0, 1), 1), math.radians(-180), math.radians(-90)), False)
sketch2.addGeometry(Part.LineSegment(Vector(-12.7, -13.7, 0), Vector(-10.6, -13.7, 0)), False)
sketch2.addGeometry(Part.ArcOfCircle(Part.Circle(Vector(-10.6, -12.7, 0), Vector(0, 0, 1), 1), math.radians(-90), math.radians(0)), False)
sketch2.addGeometry(Part.LineSegment(Vector(-9.6, -12.7, 0), Vector(-9.6, -10.6, 0)), False)
sketch2.addGeometry(Part.ArcOfCircle(Part.Circle(Vector(-10.6, -10.6, 0), Vector(0, 0, 1), 1), math.radians(0), math.radians(90)), False)
sketch2.addGeometry(Part.LineSegment(Vector(-10.6, -9.6, 0), Vector(-12.7, -9.6, 0)), False)
sketch2.addGeometry(Part.ArcOfCircle(Part.Circle(Vector(-12.7, -10.6, 0), Vector(0, 0, 1), 1), math.radians(90), math.radians(180)), False)
sketch2.addConstraint(Sketcher.Constraint("Tangent", 0, 2, 1, 1))
sketch2.addConstraint(Sketcher.Constraint("Tangent", 1, 2, 2, 1))
sketch2.addConstraint(Sketcher.Constraint("Tangent", 2, 2, 3, 1))
sketch2.addConstraint(Sketcher.Constraint("Tangent", 3, 2, 4, 1))
sketch2.addConstraint(Sketcher.Constraint("Tangent", 4, 2, 5, 1))
sketch2.addConstraint(Sketcher.Constraint("Tangent", 5, 2, 6, 1))
sketch2.addConstraint(Sketcher.Constraint("Tangent", 6, 2, 7, 1))
sketch2.addConstraint(Sketcher.Constraint("Tangent", 7, 2, 0, 1))
sketch2.addConstraint(Sketcher.Constraint("Tangent", 8, 2, 9, 1))
sketch2.addConstraint(Sketcher.Constraint("Tangent", 9, 2, 10, 1))
sketch2.addConstraint(Sketcher.Constraint("Tangent", 10, 2, 11, 1))
sketch2.addConstraint(Sketcher.Constraint("Tangent", 11, 2, 12, 1))
sketch2.addConstraint(Sketcher.Constraint("Tangent", 12, 2, 13, 1))
sketch2.addConstraint(Sketcher.Constraint("Tangent", 13, 2, 14, 1))
sketch2.addConstraint(Sketcher.Constraint("Tangent", 14, 2, 15, 1))
sketch2.addConstraint(Sketcher.Constraint("Tangent", 15, 2, 8, 1))
sketch2.addConstraint(Sketcher.Constraint("Tangent", 16, 2, 17, 1))
sketch2.addConstraint(Sketcher.Constraint("Tangent", 17, 2, 18, 1))
sketch2.addConstraint(Sketcher.Constraint("Tangent", 18, 2, 19, 1))
sketch2.addConstraint(Sketcher.Constraint("Tangent", 19, 2, 20, 1))
sketch2.addConstraint(Sketcher.Constraint("Tangent", 20, 2, 21, 1))
sketch2.addConstraint(Sketcher.Constraint("Tangent", 21, 2, 22, 1))
sketch2.addConstraint(Sketcher.Constraint("Tangent", 22, 2, 23, 1))
sketch2.addConstraint(Sketcher.Constraint("Tangent", 23, 2, 16, 1))
sketch2.addConstraint(Sketcher.Constraint("Tangent", 24, 2, 25, 1))
sketch2.addConstraint(Sketcher.Constraint("Tangent", 25, 2, 26, 1))
sketch2.addConstraint(Sketcher.Constraint("Tangent", 26, 2, 27, 1))
sketch2.addConstraint(Sketcher.Constraint("Tangent", 27, 2, 28, 1))
sketch2.addConstraint(Sketcher.Constraint("Tangent", 28, 2, 29, 1))
sketch2.addConstraint(Sketcher.Constraint("Tangent", 29, 2, 30, 1))
sketch2.addConstraint(Sketcher.Constraint("Tangent", 30, 2, 31, 1))
sketch2.addConstraint(Sketcher.Constraint("Tangent", 31, 2, 24, 1))
sketch2.addConstraint(Sketcher.Constraint("Vertical", 0))
sketch2.addConstraint(Sketcher.Constraint("Horizontal", 2))
sketch2.addConstraint(Sketcher.Constraint("Vertical", 4))
sketch2.addConstraint(Sketcher.Constraint("Horizontal", 6))
sketch2.addConstraint(Sketcher.Constraint("Horizontal", 8))
sketch2.addConstraint(Sketcher.Constraint("Vertical", 10))
sketch2.addConstraint(Sketcher.Constraint("Horizontal", 12))
sketch2.addConstraint(Sketcher.Constraint("Vertical", 14))
sketch2.addConstraint(Sketcher.Constraint("Horizontal", 16))
sketch2.addConstraint(Sketcher.Constraint("Vertical", 18))
sketch2.addConstraint(Sketcher.Constraint("Horizontal", 20))
sketch2.addConstraint(Sketcher.Constraint("Vertical", 22))
sketch2.addConstraint(Sketcher.Constraint("Vertical", 24))
sketch2.addConstraint(Sketcher.Constraint("Horizontal", 26))
sketch2.addConstraint(Sketcher.Constraint("Vertical", 28))
sketch2.addConstraint(Sketcher.Constraint("Horizontal", 30))
sketch2.addConstraint(Sketcher.Constraint("Equal", 1, 3))
sketch2.addConstraint(Sketcher.Constraint("Equal", 3, 5))
sketch2.addConstraint(Sketcher.Constraint("Equal", 5, 7))
sketch2.addConstraint(Sketcher.Constraint("Equal", 7, 9))
sketch2.addConstraint(Sketcher.Constraint("Equal", 9, 11))
sketch2.addConstraint(Sketcher.Constraint("Equal", 11, 13))
sketch2.addConstraint(Sketcher.Constraint("Equal", 13, 15))
sketch2.addConstraint(Sketcher.Constraint("Equal", 15, 17))
sketch2.addConstraint(Sketcher.Constraint("Equal", 17, 19))
sketch2.addConstraint(Sketcher.Constraint("Equal", 19, 21))
sketch2.addConstraint(Sketcher.Constraint("Equal", 21, 23))
sketch2.addConstraint(Sketcher.Constraint("Equal", 23, 25))
sketch2.addConstraint(Sketcher.Constraint("Equal", 25, 27))
sketch2.addConstraint(Sketcher.Constraint("Equal", 27, 29))
sketch2.addConstraint(Sketcher.Constraint("Equal", 29, 31))
sketch2.addConstraint(Sketcher.Constraint("Symmetric", 9, 3, 17, 3, -1, 1))
sketch2.addConstraint(Sketcher.Constraint("Symmetric", 13, 3, 21, 3, -1, 1))
sketch2.addConstraint(Sketcher.Constraint("Symmetric", 1, 3, 25, 3, -1, 1))
sketch2.addConstraint(Sketcher.Constraint("Symmetric", 5, 3, 29, 3, -1, 1))
sketch2.addConstraint(Sketcher.Constraint("Symmetric", 1, 3, 9, 3, -2))
sketch2.addConstraint(Sketcher.Constraint("Symmetric", 5, 3, 13, 3, -2))
sketch2.addConstraint(Sketcher.Constraint("Equal", 30, 0))
sketch2.addConstraint(Sketcher.Constraint("Radius", 1, Q("1 mm")))
sketch2.addConstraint(Sketcher.Constraint("DistanceX", 2, 2, 2, 1, Q("2.15 mm")))
sketch2.addConstraint(Sketcher.Constraint("DistanceX", -1, 1, 1, 3, Q("12.7 mm")))
sketch2.addConstraint(Sketcher.Constraint("DistanceY", -1, 1, 1, 3, Q("12.7 mm")))
pocket1 = doc.addObject("PartDesign::Pocket", "Pocket")
body.addObject(pocket1)
pocket1.Profile = sketch2
pocket1.Type = "ThroughAll"

doc.recompute()
